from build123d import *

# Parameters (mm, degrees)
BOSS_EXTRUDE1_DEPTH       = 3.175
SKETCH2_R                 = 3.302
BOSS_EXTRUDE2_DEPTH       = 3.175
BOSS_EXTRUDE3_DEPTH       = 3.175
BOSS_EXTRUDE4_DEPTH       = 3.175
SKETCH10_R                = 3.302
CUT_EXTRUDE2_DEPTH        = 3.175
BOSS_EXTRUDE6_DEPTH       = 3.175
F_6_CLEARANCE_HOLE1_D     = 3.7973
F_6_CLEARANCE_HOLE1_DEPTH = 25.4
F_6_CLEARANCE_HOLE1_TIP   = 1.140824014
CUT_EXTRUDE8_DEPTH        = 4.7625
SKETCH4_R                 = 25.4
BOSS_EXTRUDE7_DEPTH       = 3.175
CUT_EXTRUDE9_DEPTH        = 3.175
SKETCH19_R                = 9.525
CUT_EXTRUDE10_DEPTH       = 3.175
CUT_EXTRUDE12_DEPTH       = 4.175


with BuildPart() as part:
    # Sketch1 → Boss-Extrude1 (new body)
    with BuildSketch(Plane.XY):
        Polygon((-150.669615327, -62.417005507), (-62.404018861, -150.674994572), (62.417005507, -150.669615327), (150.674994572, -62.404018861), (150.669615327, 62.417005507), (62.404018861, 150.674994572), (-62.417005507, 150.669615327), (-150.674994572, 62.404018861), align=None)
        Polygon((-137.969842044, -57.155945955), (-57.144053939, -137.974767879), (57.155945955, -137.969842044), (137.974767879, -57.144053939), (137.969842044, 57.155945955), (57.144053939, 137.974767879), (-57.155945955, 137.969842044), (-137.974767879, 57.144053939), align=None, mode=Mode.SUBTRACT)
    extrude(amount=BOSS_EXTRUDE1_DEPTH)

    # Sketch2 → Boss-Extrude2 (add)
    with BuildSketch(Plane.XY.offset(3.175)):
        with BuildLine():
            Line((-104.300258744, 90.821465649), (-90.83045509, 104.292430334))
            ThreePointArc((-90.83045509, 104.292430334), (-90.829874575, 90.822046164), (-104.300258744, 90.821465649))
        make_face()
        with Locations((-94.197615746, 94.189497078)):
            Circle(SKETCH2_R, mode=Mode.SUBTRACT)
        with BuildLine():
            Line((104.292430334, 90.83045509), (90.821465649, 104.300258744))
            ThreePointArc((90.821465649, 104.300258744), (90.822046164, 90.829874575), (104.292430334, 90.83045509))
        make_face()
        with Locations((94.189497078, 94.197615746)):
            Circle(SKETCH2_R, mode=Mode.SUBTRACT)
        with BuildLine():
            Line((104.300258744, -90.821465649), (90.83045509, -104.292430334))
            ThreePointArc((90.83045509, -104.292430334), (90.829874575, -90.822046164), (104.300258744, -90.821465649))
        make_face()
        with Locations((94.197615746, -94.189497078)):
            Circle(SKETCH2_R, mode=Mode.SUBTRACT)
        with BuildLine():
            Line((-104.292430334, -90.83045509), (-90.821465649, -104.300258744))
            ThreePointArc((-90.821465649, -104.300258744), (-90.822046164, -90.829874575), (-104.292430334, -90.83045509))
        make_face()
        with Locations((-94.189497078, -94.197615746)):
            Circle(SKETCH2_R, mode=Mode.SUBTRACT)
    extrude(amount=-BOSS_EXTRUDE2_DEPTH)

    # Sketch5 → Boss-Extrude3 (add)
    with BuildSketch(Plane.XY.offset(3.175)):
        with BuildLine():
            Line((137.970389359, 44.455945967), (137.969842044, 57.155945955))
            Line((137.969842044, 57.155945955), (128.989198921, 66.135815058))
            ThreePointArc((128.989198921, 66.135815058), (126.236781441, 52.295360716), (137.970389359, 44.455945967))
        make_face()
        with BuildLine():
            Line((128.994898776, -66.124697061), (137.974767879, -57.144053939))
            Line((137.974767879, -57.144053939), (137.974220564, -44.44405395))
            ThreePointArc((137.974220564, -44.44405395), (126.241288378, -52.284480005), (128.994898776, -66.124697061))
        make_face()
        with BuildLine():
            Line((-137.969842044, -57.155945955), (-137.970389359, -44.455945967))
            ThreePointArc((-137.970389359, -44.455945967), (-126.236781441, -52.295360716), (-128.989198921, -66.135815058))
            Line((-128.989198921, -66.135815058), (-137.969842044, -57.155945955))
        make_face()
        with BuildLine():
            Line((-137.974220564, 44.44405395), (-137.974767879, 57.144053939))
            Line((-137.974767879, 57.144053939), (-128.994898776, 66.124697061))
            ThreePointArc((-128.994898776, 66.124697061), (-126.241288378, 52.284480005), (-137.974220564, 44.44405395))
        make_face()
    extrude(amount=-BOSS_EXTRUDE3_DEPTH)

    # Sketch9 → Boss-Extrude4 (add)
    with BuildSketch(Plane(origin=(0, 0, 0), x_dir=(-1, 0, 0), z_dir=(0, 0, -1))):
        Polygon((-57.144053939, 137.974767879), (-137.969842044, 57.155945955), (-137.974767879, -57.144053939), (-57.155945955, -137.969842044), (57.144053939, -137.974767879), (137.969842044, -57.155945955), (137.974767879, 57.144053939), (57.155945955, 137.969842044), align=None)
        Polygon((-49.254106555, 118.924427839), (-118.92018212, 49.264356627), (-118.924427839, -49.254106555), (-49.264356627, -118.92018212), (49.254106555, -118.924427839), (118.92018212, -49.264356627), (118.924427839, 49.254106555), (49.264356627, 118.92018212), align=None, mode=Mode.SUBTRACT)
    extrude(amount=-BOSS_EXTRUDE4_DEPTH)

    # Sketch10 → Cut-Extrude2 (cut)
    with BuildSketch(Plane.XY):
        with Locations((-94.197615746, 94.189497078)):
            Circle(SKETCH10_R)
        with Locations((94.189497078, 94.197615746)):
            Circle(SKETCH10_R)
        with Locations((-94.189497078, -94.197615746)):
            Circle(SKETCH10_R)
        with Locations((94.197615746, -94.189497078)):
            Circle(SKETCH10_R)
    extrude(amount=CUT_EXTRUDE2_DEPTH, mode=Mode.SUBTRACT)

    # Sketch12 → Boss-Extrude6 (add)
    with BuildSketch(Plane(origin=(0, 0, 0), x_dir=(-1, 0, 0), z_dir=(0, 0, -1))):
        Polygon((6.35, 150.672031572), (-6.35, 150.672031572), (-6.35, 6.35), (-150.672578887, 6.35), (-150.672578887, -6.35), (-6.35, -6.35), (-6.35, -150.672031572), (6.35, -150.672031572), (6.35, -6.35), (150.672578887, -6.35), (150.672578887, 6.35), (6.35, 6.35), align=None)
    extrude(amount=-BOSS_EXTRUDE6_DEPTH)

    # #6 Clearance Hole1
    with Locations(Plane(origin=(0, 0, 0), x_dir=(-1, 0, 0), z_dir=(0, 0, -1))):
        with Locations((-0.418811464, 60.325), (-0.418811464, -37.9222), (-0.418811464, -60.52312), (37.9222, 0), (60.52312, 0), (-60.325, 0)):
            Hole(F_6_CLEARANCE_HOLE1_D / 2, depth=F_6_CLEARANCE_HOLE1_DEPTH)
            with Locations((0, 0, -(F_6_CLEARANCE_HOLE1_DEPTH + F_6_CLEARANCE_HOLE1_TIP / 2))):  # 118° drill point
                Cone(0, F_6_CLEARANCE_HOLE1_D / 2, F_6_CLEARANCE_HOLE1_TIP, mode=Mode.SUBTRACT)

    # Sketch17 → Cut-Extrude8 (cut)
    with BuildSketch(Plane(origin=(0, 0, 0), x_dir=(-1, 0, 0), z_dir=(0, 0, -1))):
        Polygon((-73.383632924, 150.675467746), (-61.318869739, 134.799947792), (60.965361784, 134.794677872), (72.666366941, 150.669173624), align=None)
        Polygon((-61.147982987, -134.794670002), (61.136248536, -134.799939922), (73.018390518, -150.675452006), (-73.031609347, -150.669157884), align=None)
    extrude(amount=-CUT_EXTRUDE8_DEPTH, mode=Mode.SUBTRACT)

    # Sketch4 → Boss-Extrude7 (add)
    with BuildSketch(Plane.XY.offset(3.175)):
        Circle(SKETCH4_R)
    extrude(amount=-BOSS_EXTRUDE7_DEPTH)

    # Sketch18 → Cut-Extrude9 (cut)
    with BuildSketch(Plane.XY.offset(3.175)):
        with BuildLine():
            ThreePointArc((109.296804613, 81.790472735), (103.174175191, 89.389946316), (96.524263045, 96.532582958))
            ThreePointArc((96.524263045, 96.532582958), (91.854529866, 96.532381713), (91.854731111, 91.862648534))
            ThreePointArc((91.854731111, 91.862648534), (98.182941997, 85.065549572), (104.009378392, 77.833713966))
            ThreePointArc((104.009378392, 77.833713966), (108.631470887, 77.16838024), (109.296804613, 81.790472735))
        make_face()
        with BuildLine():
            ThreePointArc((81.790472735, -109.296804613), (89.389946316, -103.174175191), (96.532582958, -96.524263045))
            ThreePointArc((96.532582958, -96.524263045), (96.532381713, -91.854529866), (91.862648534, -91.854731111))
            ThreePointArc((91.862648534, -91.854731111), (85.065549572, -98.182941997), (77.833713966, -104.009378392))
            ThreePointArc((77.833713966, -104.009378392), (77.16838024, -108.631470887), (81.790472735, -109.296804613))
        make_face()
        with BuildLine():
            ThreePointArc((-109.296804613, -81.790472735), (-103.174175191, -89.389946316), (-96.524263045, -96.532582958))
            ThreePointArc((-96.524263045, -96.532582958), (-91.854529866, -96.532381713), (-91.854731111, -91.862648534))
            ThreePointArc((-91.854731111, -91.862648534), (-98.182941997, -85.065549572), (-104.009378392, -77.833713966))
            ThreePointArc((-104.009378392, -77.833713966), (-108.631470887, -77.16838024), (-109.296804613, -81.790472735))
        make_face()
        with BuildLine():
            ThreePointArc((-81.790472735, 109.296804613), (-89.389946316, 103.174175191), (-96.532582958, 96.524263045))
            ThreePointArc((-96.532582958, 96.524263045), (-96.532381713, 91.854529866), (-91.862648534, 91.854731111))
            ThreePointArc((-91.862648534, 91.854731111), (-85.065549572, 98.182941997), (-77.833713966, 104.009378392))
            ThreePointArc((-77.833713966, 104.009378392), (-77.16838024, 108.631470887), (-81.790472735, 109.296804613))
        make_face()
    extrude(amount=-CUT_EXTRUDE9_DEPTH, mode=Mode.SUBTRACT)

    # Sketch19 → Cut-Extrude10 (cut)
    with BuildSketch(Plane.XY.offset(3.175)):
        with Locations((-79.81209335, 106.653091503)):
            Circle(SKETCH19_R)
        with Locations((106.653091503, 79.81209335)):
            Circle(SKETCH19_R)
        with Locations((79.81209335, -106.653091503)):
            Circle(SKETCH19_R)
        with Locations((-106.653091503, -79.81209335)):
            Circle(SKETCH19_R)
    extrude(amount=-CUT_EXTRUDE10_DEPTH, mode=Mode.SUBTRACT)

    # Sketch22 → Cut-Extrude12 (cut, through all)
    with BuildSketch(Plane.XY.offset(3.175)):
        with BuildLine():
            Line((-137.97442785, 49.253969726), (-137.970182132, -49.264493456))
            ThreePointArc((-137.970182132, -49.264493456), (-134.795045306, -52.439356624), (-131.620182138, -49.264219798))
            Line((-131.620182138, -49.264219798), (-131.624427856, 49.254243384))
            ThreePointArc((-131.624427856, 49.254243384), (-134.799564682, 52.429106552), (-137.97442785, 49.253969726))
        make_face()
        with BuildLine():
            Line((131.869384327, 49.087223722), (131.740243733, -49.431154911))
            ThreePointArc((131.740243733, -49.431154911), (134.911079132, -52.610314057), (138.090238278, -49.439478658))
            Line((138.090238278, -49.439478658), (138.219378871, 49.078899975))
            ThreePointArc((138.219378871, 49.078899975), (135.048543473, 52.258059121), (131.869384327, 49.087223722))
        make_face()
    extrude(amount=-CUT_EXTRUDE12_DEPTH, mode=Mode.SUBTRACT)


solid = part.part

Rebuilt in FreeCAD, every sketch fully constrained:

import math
import FreeCAD as App
import Part
import Sketcher
from FreeCAD import Vector
Q = App.Units.Quantity

doc = App.newDocument("Part")
params = doc.addObject("Spreadsheet::Sheet", "Params")
for row, (alias, value) in enumerate([
    ("sketch1_length", "4.5 in"),
    ("pad1_length", "0.125 in"),
    ("sketch2_diameter", "0.26 in"),
    ("sketch2_radius", "0.375 in"),
    ("pad2_length", "0.125 in"),
    ("sketch3_radius", "0.5 in"),
    ("pad3_length", "0.125 in"),
    ("sketch4_length", "4.5 in"),
    ("pad4_length", "0.125 in"),
    ("sketch5_diameter", "0.26 in"),
    ("pocket1_length", "0.125 in"),
    ("sketch6_width", "0.5 in"),
    ("pad5_length", "0.125 in"),
    ("hole_diameter", "0.1495 in"),
    ("hole_depth", "1 in"),
    ("sketch8_length", "5.75 in"),
    ("pocket2_length", "0.1875 in"),
    ("sketch9_diameter", "2 in"),
    ("pad6_length", "0.125 in"),
    ("sketch10_radius", "0.13 in"),
    ("pocket3_length", "0.125 in"),
    ("sketch11_diameter", "0.75 in"),
    ("pocket4_length", "0.125 in"),
    ("sketch12_radius", "0.125 in"),
    ("sketch12_radius2", "0.125 in"),
    ("sketch12_radius3", "0.125 in"),
    ("sketch12_radius4", "0.125 in"),
], start=1):
    params.set(f"A{row}", alias)
    params.set(f"B{row}", "=" + value)
    params.setAlias(f"B{row}", alias)

body = doc.addObject("PartDesign::Body", "Body")

sketch1 = body.newObject("Sketcher::SketchObject", "Sketch")
sketch1.AttachmentSupport = (doc.getObject("XY_Plane"), [""])
sketch1.MapMode = "FlatFace"
sketch1.addGeometry([
    Part.LineSegment(Vector(-151, -62, 0), Vector(-62, -151, 0)),
    Part.LineSegment(Vector(-62, -151, 0), Vector(62, -151, 0)),
    Part.LineSegment(Vector(62, -151, 0), Vector(151, -62, 0)),
    Part.LineSegment(Vector(151, -62, 0), Vector(151, 62, 0)),
    Part.LineSegment(Vector(151, 62, 0), Vector(62, 151, 0)),
    Part.LineSegment(Vector(62, 151, 0), Vector(-62, 151, 0)),
    Part.LineSegment(Vector(-62, 151, 0), Vector(-151, 62, 0)),
    Part.LineSegment(Vector(-151, 62, 0), Vector(-151, -62, 0)),
    Part.LineSegment(Vector(-57, -138, 0), Vector(-138, -57, 0)),
    Part.LineSegment(Vector(-138, -57, 0), Vector(-138, 57, 0)),
    Part.LineSegment(Vector(-138, 57, 0), Vector(-57, 138, 0)),
    Part.LineSegment(Vector(-57, 138, 0), Vector(57, 138, 0)),
    Part.LineSegment(Vector(57, 138, 0), Vector(138, 57, 0)),
    Part.LineSegment(Vector(138, 57, 0), Vector(138, -57, 0)),
    Part.LineSegment(Vector(138, -57, 0), Vector(57, -138, 0)),
    Part.LineSegment(Vector(57, -138, 0), Vector(-57, -138, 0)),
], False)
sketch1.addConstraint([
    Sketcher.Constraint("Coincident", 0, 2, 1, 1),
    Sketcher.Constraint("Coincident", 1, 2, 2, 1),
    Sketcher.Constraint("Coincident", 2, 2, 3, 1),
    Sketcher.Constraint("Coincident", 3, 2, 4, 1),
    Sketcher.Constraint("Coincident", 4, 2, 5, 1),
    Sketcher.Constraint("Coincident", 5, 2, 6, 1),
    Sketcher.Constraint("Coincident", 6, 2, 7, 1),
    Sketcher.Constraint("Coincident", 7, 2, 0, 1),
    Sketcher.Constraint("Coincident", 8, 2, 9, 1),
    Sketcher.Constraint("Coincident", 9, 2, 10, 1),
    Sketcher.Constraint("Coincident", 10, 2, 11, 1),
    Sketcher.Constraint("Coincident", 11, 2, 12, 1),
    Sketcher.Constraint("Coincident", 12, 2, 13, 1),
    Sketcher.Constraint("Coincident", 13, 2, 14, 1),
    Sketcher.Constraint("Coincident", 14, 2, 15, 1),
    Sketcher.Constraint("Coincident", 15, 2, 8, 1),
    Sketcher.Constraint("Symmetric", 0, 2, 4, 2, -1, 1),
    Sketcher.Constraint("Symmetric", 1, 2, 5, 2, -1, 1),
    Sketcher.Constraint("Symmetric", 2, 2, 6, 2, -1, 1),
    Sketcher.Constraint("Symmetric", 3, 2, 7, 2, -1, 1),
    Sketcher.Constraint("Symmetric", 8, 2, 12, 2, -1, 1),
    Sketcher.Constraint("Symmetric", 9, 2, 13, 2, -1, 1),
    Sketcher.Constraint("Symmetric", 10, 2, 14, 2, -1, 1),
    Sketcher.Constraint("Symmetric", 11, 2, 15, 2, -1, 1),
    Sketcher.Constraint("Perpendicular", 0, 2),
    Sketcher.Constraint("Perpendicular", 1, 3),
    Sketcher.Constraint("Perpendicular", 6, 8),
    Sketcher.Constraint("Parallel", 7, 9),
    Sketcher.Constraint("Perpendicular", 8, 10),
    Sketcher.Constraint("Perpendicular", 9, 11),
    Sketcher.Constraint("Equal", 0, 1),
    Sketcher.Constraint("Equal", 1, 2),
    Sketcher.Constraint("Equal", 2, 3),
    Sketcher.Constraint("Equal", 8, 9),
    Sketcher.Constraint("Equal", 9, 10),
    Sketcher.Constraint("Equal", 10, 11),
    Sketcher.Constraint("Distance", 8, Q("4.5 in")),
    Sketcher.Constraint("DistanceY", 0, 2, 3, 2, Q("213.092 mm")),
    Sketcher.Constraint("DistanceX", 0, 2, -1, 1, Q("62.404019 mm")),
    Sketcher.Constraint("DistanceY", 0, 2, 1, 2, Q("0.005379 mm")),
])
sketch1.setExpression("Constraints[36]", "Params.sketch1_length")
pad1 = body.newObject("PartDesign::Pad", "Pad")
pad1.Profile = sketch1
pad1.setExpression("Length", "Params.pad1_length")

sketch2 = body.newObject("Sketcher::SketchObject", "Sketch001")
sketch2.AttachmentSupport = (doc.getObject("XY_Plane"), [""])
sketch2.MapMode = "FlatFace"
sketch2.AttachmentOffset = App.Placement(Vector(0, 0, 0.125 * 25.4), App.Rotation())
sketch2.addGeometry([
    Part.LineSegment(Vector(-90.8, 104.3, 0), Vector(-104.3, 90.8, 0)),
    Part.ArcOfCircle(Part.Circle(Vector(-97.6, 97.6, 0), Vector(0, 0, 1), 9.5), math.radians(-135), math.radians(45)),
    Part.Circle(Vector(-94.2, 94.2, 0), Vector(0, 0, 1), 3.3),
    Part.LineSegment(Vector(104.3, 90.8, 0), Vector(90.8, 104.3, 0)),
    Part.ArcOfCircle(Part.Circle(Vector(97.6, 97.6, 0), Vector(0, 0, 1), 9.5), math.radians(135), math.radians(315)),
    Part.Circle(Vector(94.2, 94.2, 0), Vector(0, 0, 1), 3.3),
    Part.LineSegment(Vector(90.8, -104.3, 0), Vector(104.3, -90.8, 0)),
    Part.ArcOfCircle(Part.Circle(Vector(97.6, -97.6, 0), Vector(0, 0, 1), 9.5), math.radians(45), math.radians(225)),
    Part.Circle(Vector(94.2, -94.2, 0), Vector(0, 0, 1), 3.3),
    Part.LineSegment(Vector(-104.3, -90.8, 0), Vector(-90.8, -104.3, 0)),
    Part.ArcOfCircle(Part.Circle(Vector(-97.6, -97.6, 0), Vector(0, 0, 1), 9.5), math.radians(-45), math.radians(135)),
    Part.Circle(Vector(-94.2, -94.2, 0), Vector(0, 0, 1), 3.3),
], False)
sketch2.addConstraint([
    Sketcher.Constraint("Coincident", 0, 1, 1, 2),
    Sketcher.Constraint("Coincident", 1, 1, 0, 2),
    Sketcher.Constraint("Coincident", 3, 1, 4, 2),
    Sketcher.Constraint("Coincident", 4, 1, 3, 2),
    Sketcher.Constraint("Coincident", 6, 1, 7, 2),
    Sketcher.Constraint("Coincident", 7, 1, 6, 2),
    Sketcher.Constraint("Coincident", 9, 1, 10, 2),
    Sketcher.Constraint("Coincident", 10, 1, 9, 2),
    Sketcher.Constraint("Equal", 1, 4),
    Sketcher.Constraint("Equal", 2, 5),
    Sketcher.Constraint("Equal", 4, 7),
    Sketcher.Constraint("Equal", 5, 8),
    Sketcher.Constraint("Equal", 7, 10),
    Sketcher.Constraint("Equal", 8, 11),
    Sketcher.Constraint("Symmetric", 1, 3, 7, 3, -1, 1),
    Sketcher.Constraint("Symmetric", 2, 3, 8, 3, -1, 1),
    Sketcher.Constraint("Symmetric", 4, 3, 10, 3, -1, 1),
    Sketcher.Constraint("Symmetric", 5, 3, 11, 3, -1, 1),
    Sketcher.Constraint("Perpendicular", 0, 3),
    Sketcher.Constraint("Perpendicular", 3, 6),
    Sketcher.Constraint("Perpendicular", 6, 9),
    Sketcher.Constraint("Diameter", 2, Q("0.26 in")),
    Sketcher.Constraint("Radius", 1, Q("0.375 in")),
    Sketcher.Constraint("DistanceX", 1, 3, 0, 1, Q("6.734902 mm")),
    Sketcher.Constraint("DistanceX", 1, 1, 1, 3, Q("6.734902 mm")),
    Sketcher.Constraint("DistanceY", 3, 1, 4, 3, Q("6.734902 mm")),
    Sketcher.Constraint("DistanceX", 6, 1, 7, 3, Q("6.734902 mm")),
    Sketcher.Constraint("DistanceY", 10, 3, 9, 1, Q("6.734902 mm")),
    Sketcher.Constraint("DistanceY", -1, 1, 0, 1, Q("104.29243 mm")),
    Sketcher.Constraint("DistanceX", 1, 1, -1, 1, Q("104.300259 mm")),
    Sketcher.Constraint("DistanceX", -1, 1, 3, 1, Q("104.29243 mm")),
    Sketcher.Constraint("DistanceY", -1, 1, 4, 1, Q("104.300259 mm")),
    Sketcher.Constraint("DistanceX", 1, 3, 2, 3, Q("3.367741 mm")),
    Sketcher.Constraint("DistanceY", 2, 3, 1, 3, Q("3.367451 mm")),
    Sketcher.Constraint("DistanceX", 5, 3, 4, 3, Q("3.367451 mm")),
    Sketcher.Constraint("DistanceY", 5, 3, 4, 3, Q("3.367741 mm")),
])
sketch2.setExpression("Constraints[21]", "Params.sketch2_diameter")
sketch2.setExpression("Constraints[22]", "Params.sketch2_radius")
pad2 = body.newObject("PartDesign::Pad", "Pad001")
pad2.Profile = sketch2
pad2.setExpression("Length", "Params.pad2_length")
pad2.Reversed = True

sketch3 = body.newObject("Sketcher::SketchObject", "Sketch002")
sketch3.AttachmentSupport = (doc.getObject("XY_Plane"), [""])
sketch3.MapMode = "FlatFace"
sketch3.AttachmentOffset = App.Placement(Vector(0, 0, 0.125 * 25.4), App.Rotation())
sketch3.addGeometry([
    Part.LineSegment(Vector(138, 44, 0), Vector(138, 57, 0)),
    Part.LineSegment(Vector(138, 57, 0), Vector(129, 66, 0)),
    Part.ArcOfCircle(Part.Circle(Vector(138, 57, 0), Vector(0, 0, 1), 13), math.radians(135), math.radians(270)),
    Part.LineSegment(Vector(129, -66, 0), Vector(138, -57, 0)),
    Part.LineSegment(Vector(138, -57, 0), Vector(138, -44, 0)),
    Part.ArcOfCircle(Part.Circle(Vector(138, -57, 0), Vector(0, 0, 1), 13), math.radians(90), math.radians(225)),
    Part.LineSegment(Vector(-138, -44, 0), Vector(-138, -57, 0)),
    Part.LineSegment(Vector(-138, -57, 0), Vector(-129, -66, 0)),
    Part.ArcOfCircle(Part.Circle(Vector(-138, -57, 0), Vector(0, 0, 1), 13), math.radians(-45), math.radians(90)),
    Part.LineSegment(Vector(-138, 57, 0), Vector(-138, 44, 0)),
    Part.ArcOfCircle(Part.Circle(Vector(-138, 57, 0), Vector(0, 0, 1), 13), math.radians(-90), math.radians(45)),
    Part.LineSegment(Vector(-129, 66, 0), Vector(-138, 57, 0)),
], False)
sketch3.addConstraint([
    Sketcher.Constraint("Coincident", 0, 2, 1, 1),
    Sketcher.Constraint("Coincident", 1, 2, 2, 1),
    Sketcher.Constraint("Coincident", 2, 2, 0, 1),
    Sketcher.Constraint("Coincident", 3, 2, 4, 1),
    Sketcher.Constraint("Coincident", 4, 2, 5, 1),
    Sketcher.Constraint("Coincident", 5, 2, 3, 1),
    Sketcher.Constraint("Coincident", 6, 2, 7, 1),
    Sketcher.Constraint("Coincident", 7, 2, 8, 1),
    Sketcher.Constraint("Coincident", 8, 2, 6, 1),
    Sketcher.Constraint("Coincident", 9, 2, 10, 1),
    Sketcher.Constraint("Coincident", 10, 2, 11, 1),
    Sketcher.Constraint("Coincident", 11, 2, 9, 1),
    Sketcher.Constraint("Coincident", 0, 2, 2, 3),
    Sketcher.Constraint("Coincident", 3, 2, 5, 3),
    Sketcher.Constraint("Coincident", 6, 2, 8, 3),
    Sketcher.Constraint("Coincident", 11, 2, 10, 3),
    Sketcher.Constraint("Equal", 2, 5),
    Sketcher.Constraint("Equal", 5, 8),
    Sketcher.Constraint("Equal", 8, 10),
    Sketcher.Constraint("Symmetric", 2, 3, 8, 3, -1, 1),
    Sketcher.Constraint("Symmetric", 5, 3, 10, 3, -1, 1),
    Sketcher.Constraint("Perpendicular", 1, 3),
    Sketcher.Constraint("Parallel", 0, 4),
    Sketcher.Constraint("Parallel", 4, 6),
    Sketcher.Constraint("Perpendicular", 3, 7),
    Sketcher.Constraint("Parallel", 6, 9),
    Sketcher.Constraint("Perpendicular", 7, 11),
    Sketcher.Constraint("Radius", 2, Q("0.5 in")),
    Sketcher.Constraint("DistanceY", 5, 3, 2, 2, Q("4 in")),
    Sketcher.Constraint("DistanceX", -1, 1, 1, 2, Q("128.989199 mm")),
    Sketcher.Constraint("DistanceX", -1, 1, 5, 2, Q("128.994899 mm")),
    Sketcher.Constraint("DistanceX", -1, 1, 2, 2, Q("137.970389 mm")),
    Sketcher.Constraint("DistanceY", 8, 3, 2, 3, Q("114.311892 mm")),
    Sketcher.Constraint("DistanceY", 0, 2, 1, 2, Q("8.979869 mm")),
])
sketch3.setExpression("Constraints[27]", "Params.sketch3_radius")
pad3 = body.newObject("PartDesign::Pad", "Pad002")
pad3.Profile = sketch3
pad3.setExpression("Length", "Params.pad3_length")
pad3.Reversed = True

sketch4 = body.newObject("Sketcher::SketchObject", "Sketch003")
sketch4.AttachmentSupport = (doc.getObject("XY_Plane"), [""])
sketch4.MapMode = "FlatFace"
sketch4.addGeometry([
    Part.LineSegment(Vector(57, 138, 0), Vector(138, 57, 0)),
    Part.LineSegment(Vector(138, 57, 0), Vector(138, -57, 0)),
    Part.LineSegment(Vector(138, -57, 0), Vector(57, -138, 0)),
    Part.LineSegment(Vector(57, -138, 0), Vector(-57, -138, 0)),
    Part.LineSegment(Vector(-57, -138, 0), Vector(-138, -57, 0)),
    Part.LineSegment(Vector(-138, -57, 0), Vector(-138, 57, 0)),
    Part.LineSegment(Vector(-138, 57, 0), Vector(-57, 138, 0)),
    Part.LineSegment(Vector(-57, 138, 0), Vector(57, 138, 0)),
    Part.LineSegment(Vector(119, 49, 0), Vector(49, 119, 0)),
    Part.LineSegment(Vector(49, 119, 0), Vector(-49, 119, 0)),
    Part.LineSegment(Vector(-49, 119, 0), Vector(-119, 49, 0)),
    Part.LineSegment(Vector(-119, 49, 0), Vector(-119, -49, 0)),
    Part.LineSegment(Vector(-119, -49, 0), Vector(-49, -119, 0)),
    Part.LineSegment(Vector(-49, -119, 0), Vector(49, -119, 0)),
    Part.LineSegment(Vector(49, -119, 0), Vector(119, -49, 0)),
    Part.LineSegment(Vector(119, -49, 0), Vector(119, 49, 0)),
], False)
sketch4.addConstraint([
    Sketcher.Constraint("Coincident", 0, 2, 1, 1),
    Sketcher.Constraint("Coincident", 1, 2, 2, 1),
    Sketcher.Constraint("Coincident", 2, 2, 3, 1),
    Sketcher.Constraint("Coincident", 3, 2, 4, 1),
    Sketcher.Constraint("Coincident", 4, 2, 5, 1),
    Sketcher.Constraint("Coincident", 5, 2, 6, 1),
    Sketcher.Constraint("Coincident", 6, 2, 7, 1),
    Sketcher.Constraint("Coincident", 7, 2, 0, 1),
    Sketcher.Constraint("Coincident", 8, 2, 9, 1),
    Sketcher.Constraint("Coincident", 9, 2, 10, 1),
    Sketcher.Constraint("Coincident", 10, 2, 11, 1),
    Sketcher.Constraint("Coincident", 11, 2, 12, 1),
    Sketcher.Constraint("Coincident", 12, 2, 13, 1),
    Sketcher.Constraint("Coincident", 13, 2, 14, 1),
    Sketcher.Constraint("Coincident", 14, 2, 15, 1),
    Sketcher.Constraint("Coincident", 15, 2, 8, 1),
    Sketcher.Constraint("Symmetric", 0, 2, 4, 2, -1, 1),
    Sketcher.Constraint("Symmetric", 1, 2, 5, 2, -1, 1),
    Sketcher.Constraint("Symmetric", 2, 2, 6, 2, -1, 1),
    Sketcher.Constraint("Symmetric", 3, 2, 7, 2, -1, 1),
    Sketcher.Constraint("Symmetric", 8, 2, 12, 2, -1, 1),
    Sketcher.Constraint("Symmetric", 9, 2, 13, 2, -1, 1),
    Sketcher.Constraint("Symmetric", 10, 2, 14, 2, -1, 1),
    Sketcher.Constraint("Symmetric", 11, 2, 15, 2, -1, 1),
    Sketcher.Constraint("Perpendicular", 0, 2),
    Sketcher.Constraint("Perpendicular", 1, 3),
    Sketcher.Constraint("Perpendicular", 6, 8),
    Sketcher.Constraint("Parallel", 7, 9),
    Sketcher.Constraint("Perpendicular", 8, 10),
    Sketcher.Constraint("Perpendicular", 9, 11),
    Sketcher.Constraint("Equal", 0, 1),
    Sketcher.Constraint("Equal", 1, 2),
    Sketcher.Constraint("Equal", 2, 3),
    Sketcher.Constraint("Equal", 8, 9),
    Sketcher.Constraint("Equal", 9, 10),
    Sketcher.Constraint("Equal", 10, 11),
    Sketcher.Constraint("Distance", 0, Q("4.5 in")),
    Sketcher.Constraint("DistanceX", 2, 2, 1, 2, Q("80.818822 mm")),
    Sketcher.Constraint("DistanceY", 4, 2, 0, 2, Q("114.311892 mm")),
    Sketcher.Constraint("DistanceY", 8, 2, 7, 2, Q("19.05034 mm")),
])
sketch4.setExpression("Constraints[36]", "Params.sketch4_length")
pad4 = body.newObject("PartDesign::Pad", "Pad003")
pad4.Profile = sketch4
pad4.setExpression("Length", "Params.pad4_length")

sketch5 = body.newObject("Sketcher::SketchObject", "Sketch004")
sketch5.AttachmentSupport = (doc.getObject("XY_Plane"), [""])
sketch5.MapMode = "FlatFace"
sketch5.addGeometry([
    Part.Circle(Vector(-94.2, 94.2, 0), Vector(0, 0, 1), 3.3),
    Part.Circle(Vector(94.2, 94.2, 0), Vector(0, 0, 1), 3.3),
    Part.Circle(Vector(-94.2, -94.2, 0), Vector(0, 0, 1), 3.3),
    Part.Circle(Vector(94.2, -94.2, 0), Vector(0, 0, 1), 3.3),
], False)
sketch5.addConstraint([
    Sketcher.Constraint("Equal", 0, 1),
    Sketcher.Constraint("Equal", 1, 2),
    Sketcher.Constraint("Equal", 2, 3),
    Sketcher.Constraint("Symmetric", 1, 3, 2, 3, -1, 1),
    Sketcher.Constraint("Symmetric", 0, 3, 3, 3, -1, 1),
    Sketcher.Constraint("Diameter", 0, Q("0.26 in")),
    Sketcher.Constraint("DistanceY", 0, 3, 1, 3, Q("0.008119 mm")),
    Sketcher.Constraint("DistanceX", 0, 3, 2, 3, Q("0.008119 mm")),
    Sketcher.Constraint("DistanceY", 2, 3, 1, 3, Q("188.395231 mm")),
    Sketcher.Constraint("DistanceX", 0, 3, 3, 3, Q("188.395231 mm")),
])
sketch5.setExpression("Constraints[5]", "Params.sketch5_diameter")
pocket1 = body.newObject("PartDesign::Pocket", "Pocket")
pocket1.Profile = sketch5
pocket1.setExpression("Length", "Params.pocket1_length")
pocket1.Reversed = True

sketch6 = body.newObject("Sketcher::SketchObject", "Sketch005")
sketch6.AttachmentSupport = (doc.getObject("XY_Plane"), [""])
sketch6.MapMode = "FlatFace"
sketch6.addGeometry([
    Part.LineSegment(Vector(-6, 151, 0), Vector(6, 151, 0)),
    Part.LineSegment(Vector(6, 151, 0), Vector(6, 6, 0)),
    Part.LineSegment(Vector(6, 6, 0), Vector(151, 6, 0)),
    Part.LineSegment(Vector(151, 6, 0), Vector(151, -6, 0)),
    Part.LineSegment(Vector(151, -6, 0), Vector(6, -6, 0)),
    Part.LineSegment(Vector(6, -6, 0), Vector(6, -151, 0)),
    Part.LineSegment(Vector(6, -151, 0), Vector(-6, -151, 0)),
    Part.LineSegment(Vector(-6, -151, 0), Vector(-6, -6, 0)),
    Part.LineSegment(Vector(-6, -6, 0), Vector(-151, -6, 0)),
    Part.LineSegment(Vector(-151, -6, 0), Vector(-151, 6, 0)),
    Part.LineSegment(Vector(-151, 6, 0), Vector(-6, 6, 0)),
    Part.LineSegment(Vector(-6, 6, 0), Vector(-6, 151, 0)),
], False)
sketch6.addConstraint([
    Sketcher.Constraint("Coincident", 0, 2, 1, 1),
    Sketcher.Constraint("Coincident", 1, 2, 2, 1),
    Sketcher.Constraint("Coincident", 2, 2, 3, 1),
    Sketcher.Constraint("Coincident", 3, 2, 4, 1),
    Sketcher.Constraint("Coincident", 4, 2, 5, 1),
    Sketcher.Constraint("Coincident", 5, 2, 6, 1),
    Sketcher.Constraint("Coincident", 6, 2, 7, 1),
    Sketcher.Constraint("Coincident", 7, 2, 8, 1),
    Sketcher.Constraint("Coincident", 8, 2, 9, 1),
    Sketcher.Constraint("Coincident", 9, 2, 10, 1),
    Sketcher.Constraint("Coincident", 10, 2, 11, 1),
    Sketcher.Constraint("Coincident", 11, 2, 0, 1),
    Sketcher.Constraint("Horizontal", 0),
    Sketcher.Constraint("Vertical", 1),
    Sketcher.Constraint("Horizontal", 2),
    Sketcher.Constraint("Vertical", 3),
    Sketcher.Constraint("Horizontal", 4),
    Sketcher.Constraint("Vertical", 5),
    Sketcher.Constraint("Horizontal", 6),
    Sketcher.Constraint("Vertical", 7),
    Sketcher.Constraint("Horizontal", 8),
    Sketcher.Constraint("Vertical", 9),
    Sketcher.Constraint("Horizontal", 10),
    Sketcher.Constraint("Vertical", 11),
    Sketcher.Constraint("Symmetric", 0, 2, 6, 2, -1, 1),
    Sketcher.Constraint("Symmetric", 2, 2, 8, 2, -1, 1),
    Sketcher.Constraint("Symmetric", 4, 2, 10, 2, -1, 1),
    Sketcher.Constraint("Symmetric", 4, 2, 7, 2, -2),
    Sketcher.Constraint("Equal", 6, 3),
    Sketcher.Constraint("DistanceX", 0, 1, 0, 2, Q("0.5 in")),
    Sketcher.Constraint("DistanceX", 2, 1, 2, 2, Q("144.322579 mm")),
    Sketcher.Constraint("DistanceY", 1, 2, 1, 1, Q("144.322032 mm")),
])
sketch6.setExpression("Constraints[29]", "Params.sketch6_width")
pad5 = body.newObject("PartDesign::Pad", "Pad004")
pad5.Profile = sketch6
pad5.setExpression("Length", "Params.pad5_length")

sketch7 = body.newObject("Sketcher::SketchObject", "Sketch006")
sketch7.AttachmentSupport = (doc.getObject("XY_Plane"), [""])
sketch7.MapMode = "FlatFace"
sketch7.addGeometry([
    Part.Circle(Vector(0.4, 60.3, 0), Vector(0, 0, 1), 1.9),
    Part.Circle(Vector(0.4, -37.9, 0), Vector(0, 0, 1), 1.9),
    Part.Circle(Vector(0.4, -60.5, 0), Vector(0, 0, 1), 1.9),
    Part.Circle(Vector(-37.9, 0, 0), Vector(0, 0, 1), 1.9),
    Part.Circle(Vector(-60.5, 0, 0), Vector(0, 0, 1), 1.9),
    Part.Circle(Vector(60.3, 0, 0), Vector(0, 0, 1), 1.9),
], False)
sketch7.addConstraint([
    Sketcher.Constraint("Equal", 0, 1),
    Sketcher.Constraint("Equal", 1, 2),
    Sketcher.Constraint("Equal", 2, 3),
    Sketcher.Constraint("Equal", 3, 4),
    Sketcher.Constraint("Equal", 4, 5),
    Sketcher.Constraint("PointOnObject", 3, 3, -1),
    Sketcher.Constraint("PointOnObject", 4, 3, -1),
    Sketcher.Constraint("PointOnObject", 5, 3, -1),
    Sketcher.Constraint("Vertical", 0, 3, 1, 3),
    Sketcher.Constraint("Vertical", 1, 3, 2, 3),
    Sketcher.Constraint("Diameter", 0, Q("0.1495 in")),
    Sketcher.Constraint("DistanceY", -1, 1, 0, 3, Q("2.375 in")),
    Sketcher.Constraint("DistanceY", 1, 3, -1, 1, Q("1.493 in")),
    Sketcher.Constraint("DistanceX", 3, 3, -1, 1, Q("1.493 in")),
    Sketcher.Constraint("DistanceX", -1, 1, 5, 3, Q("2.375 in")),
    Sketcher.Constraint("DistanceY", 2, 3, -1, 1, Q("2.3828 in")),
    Sketcher.Constraint("DistanceX", 4, 3, -1, 1, Q("2.3828 in")),
    Sketcher.Constraint("DistanceX", -1, 1, 0, 3, Q("0.418811 mm")),
])
doc.recompute()
hole = body.newObject("PartDesign::Hole", "Hole")
hole.Profile = sketch7
hole.ThreadType = "None"
hole.setExpression("Diameter", "Params.hole_diameter")
hole.DepthType = "Dimension"
hole.setExpression("Depth", "Params.hole_depth")
hole.DrillPoint = "Angled"
hole.DrillPointAngle = 118
hole.Reversed = True

sketch8 = body.newObject("Sketcher::SketchObject", "Sketch007")
sketch8.AttachmentSupport = (doc.getObject("XY_Plane"), [""])
sketch8.MapMode = "FlatFace"
sketch8.addGeometry([
    Part.LineSegment(Vector(73, 151, 0), Vector(61, 135, 0)),
    Part.LineSegment(Vector(61, 135, 0), Vector(-61, 135, 0)),
    Part.LineSegment(Vector(-61, 135, 0), Vector(-73, 151, 0)),
    Part.LineSegment(Vector(-73, 151, 0), Vector(73, 151, 0)),
    Part.LineSegment(Vector(-61, -135, 0), Vector(61, -135, 0)),
    Part.LineSegment(Vector(61, -135, 0), Vector(73, -151, 0)),
    Part.LineSegment(Vector(73, -151, 0), Vector(-73, -151, 0)),
    Part.LineSegment(Vector(-73, -151, 0), Vector(-61, -135, 0)),
], False)
sketch8.addConstraint([
    Sketcher.Constraint("Coincident", 0, 2, 1, 1),
    Sketcher.Constraint("Coincident", 1, 2, 2, 1),
    Sketcher.Constraint("Coincident", 2, 2, 3, 1),
    Sketcher.Constraint("Coincident", 3, 2, 0, 1),
    Sketcher.Constraint("Coincident", 4, 2, 5, 1),
    Sketcher.Constraint("Coincident", 5, 2, 6, 1),
    Sketcher.Constraint("Coincident", 6, 2, 7, 1),
    Sketcher.Constraint("Coincident", 7, 2, 4, 1),
    Sketcher.Constraint("Parallel", 1, 3),
    Sketcher.Constraint("Parallel", 3, 4),
    Sketcher.Constraint("Parallel", 4, 6),
    Sketcher.Constraint("Equal", 1, 4),
    Sketcher.Constraint("Equal", 3, 6),
    Sketcher.Constraint("Distance", 3, Q("5.75 in")),
    Sketcher.Constraint("DistanceY", 6, 2, 0, 2, Q("285.4754 mm")),
    Sketcher.Constraint("Distance", 1, Q("122.284232 mm")),
    Sketcher.Constraint("Distance", 2, Q("19.720881 mm")),
    Sketcher.Constraint("DistanceX", -1, 1, 0, 2, Q("61.31887 mm")),
    Sketcher.Constraint("DistanceY", 4, 2, -1, 1, Q("134.79467 mm")),
    Sketcher.Constraint("DistanceX", -1, 1, 5, 2, Q("73.031609 mm")),
    Sketcher.Constraint("DistanceX", 7, 2, -1, 1, Q("61.136249 mm")),
    Sketcher.Constraint("DistanceY", 7, 2, -1, 1, Q("134.79994 mm")),
    Sketcher.Constraint("DistanceY", 0, 2, 3, 2, Q("15.87552 mm")),
    Sketcher.Constraint("Distance", 5, Q("19.829774 mm")),
])
sketch8.setExpression("Constraints[13]", "Params.sketch8_length")
pocket2 = body.newObject("PartDesign::Pocket", "Pocket001")
pocket2.Profile = sketch8
pocket2.setExpression("Length", "Params.pocket2_length")
pocket2.Reversed = True

sketch9 = body.newObject("Sketcher::SketchObject", "Sketch008")
sketch9.AttachmentSupport = (doc.getObject("XY_Plane"), [""])
sketch9.MapMode = "FlatFace"
sketch9.AttachmentOffset = App.Placement(Vector(0, 0, 0.125 * 25.4), App.Rotation())
sketch9.addGeometry(Part.Circle(Vector(0, 0, 0), Vector(0, 0, 1), 25), False)
sketch9.addConstraint([
    Sketcher.Constraint("Coincident", 0, 3, -1, 1),
    Sketcher.Constraint("Diameter", 0, Q("2 in")),
])
sketch9.setExpression("Constraints[1]", "Params.sketch9_diameter")
pad6 = body.newObject("PartDesign::Pad", "Pad005")
pad6.Profile = sketch9
pad6.setExpression("Length", "Params.pad6_length")
pad6.Reversed = True

sketch10 = body.newObject("Sketcher::SketchObject", "Sketch009")
sketch10.AttachmentSupport = (doc.getObject("XY_Plane"), [""])
sketch10.MapMode = "FlatFace"
sketch10.AttachmentOffset = App.Placement(Vector(0, 0, 0.125 * 25.4), App.Rotation())
sketch10.addGeometry([
    Part.ArcOfCircle(Part.Circle(Vector(0, 0, 0), Vector(0, 0, 1), 136.5), math.radians(36.81), math.radians(45)),
    Part.ArcOfCircle(Part.Circle(Vector(94.2, 94.2, 0), Vector(0, 0, 1), 3.3), math.radians(45), math.radians(225)),
    Part.ArcOfCircle(Part.Circle(Vector(0, 0, 0), Vector(0, 0, 1), 129.9), math.radians(36.81), math.radians(45)),
    Part.ArcOfCircle(Part.Circle(Vector(106.7, 79.8, 0), Vector(0, 0, 1), 3.3), math.radians(-143), math.radians(37)),
    Part.ArcOfCircle(Part.Circle(Vector(0, 0, 0), Vector(0, 0, 1), 136.5), math.radians(-53.19), math.radians(-45)),
    Part.ArcOfCircle(Part.Circle(Vector(94.2, -94.2, 0), Vector(0, 0, 1), 3.3), math.radians(-45), math.radians(135)),
    Part.ArcOfCircle(Part.Circle(Vector(0, 0, 0), Vector(0, 0, 1), 129.9), math.radians(-53.19), math.radians(-45)),
    Part.ArcOfCircle(Part.Circle(Vector(79.8, -106.7, 0), Vector(0, 0, 1), 3.3), math.radians(127), math.radians(307)),
    Part.ArcOfCircle(Part.Circle(Vector(0, 0, 0), Vector(0, 0, 1), 136.5), math.radians(-143.19), math.radians(-135)),
    Part.ArcOfCircle(Part.Circle(Vector(-94.2, -94.2, 0), Vector(0, 0, 1), 3.3), math.radians(-135), math.radians(45)),
    Part.ArcOfCircle(Part.Circle(Vector(0, 0, 0), Vector(0, 0, 1), 129.9), math.radians(-143.19), math.radians(-135)),
    Part.ArcOfCircle(Part.Circle(Vector(-106.7, -79.8, 0), Vector(0, 0, 1), 3.3), math.radians(37), math.radians(217)),
    Part.ArcOfCircle(Part.Circle(Vector(0, 0, 0), Vector(0, 0, 1), 136.5), math.radians(126.81), math.radians(135)),
    Part.ArcOfCircle(Part.Circle(Vector(-94.2, 94.2, 0), Vector(0, 0, 1), 3.3), math.radians(135), math.radians(315)),
    Part.ArcOfCircle(Part.Circle(Vector(0, 0, 0), Vector(0, 0, 1), 129.9), math.radians(126.81), math.radians(135)),
    Part.ArcOfCircle(Part.Circle(Vector(-79.8, 106.7, 0), Vector(0, 0, 1), 3.3), math.radians(-53), math.radians(127)),
], False)
sketch10.addConstraint([
    Sketcher.Constraint("Tangent", 0, 2, 1, 1),
    Sketcher.Constraint("Tangent", 1, 2, 2, 2),
    Sketcher.Constraint("Tangent", 2, 1, 3, 1),
    Sketcher.Constraint("Tangent", 3, 2, 0, 1),
    Sketcher.Constraint("Tangent", 4, 2, 5, 1),
    Sketcher.Constraint("Tangent", 5, 2, 6, 2),
    Sketcher.Constraint("Tangent", 6, 1, 7, 1),
    Sketcher.Constraint("Tangent", 7, 2, 4, 1),
    Sketcher.Constraint("Tangent", 8, 2, 9, 1),
    Sketcher.Constraint("Tangent", 9, 2, 10, 2),
    Sketcher.Constraint("Tangent", 10, 1, 11, 1),
    Sketcher.Constraint("Tangent", 11, 2, 8, 1),
    Sketcher.Constraint("Tangent", 12, 2, 13, 1),
    Sketcher.Constraint("Tangent", 13, 2, 14, 2),
    Sketcher.Constraint("Tangent", 14, 1, 15, 1),
    Sketcher.Constraint("Tangent", 15, 2, 12, 1),
    Sketcher.Constraint("Coincident", 0, 3, -1, 1),
    Sketcher.Constraint("Coincident", 2, 3, -1, 1),
    Sketcher.Constraint("Coincident", 4, 3, -1, 1),
    Sketcher.Constraint("Coincident", 6, 3, -1, 1),
    Sketcher.Constraint("Coincident", 8, 3, -1, 1),
    Sketcher.Constraint("Coincident", 10, 3, -1, 1),
    Sketcher.Constraint("Coincident", 12, 3, -1, 1),
    Sketcher.Constraint("Coincident", 14, 3, -1, 1),
    Sketcher.Constraint("Equal", 0, 4),
    Sketcher.Constraint("Equal", 3, 5),
    Sketcher.Constraint("Equal", 4, 8),
    Sketcher.Constraint("Equal", 7, 9),
    Sketcher.Constraint("Equal", 8, 12),
    Sketcher.Constraint("Equal", 11, 13),
    Sketcher.Constraint("Radius", 1, Q("0.13 in")),
    Sketcher.Constraint("Radius", 0, Q("136.511805 mm")),
    Sketcher.Constraint("DistanceY", 2, 1, 1, 3, Q("16.363902 mm")),
    Sketcher.Constraint("DistanceX", 6, 1, 5, 3, Q("16.363902 mm")),
    Sketcher.Constraint("DistanceY", 9, 3, 10, 1, Q("16.363902 mm")),
    Sketcher.Constraint("DistanceX", 13, 3, 14, 1, Q("16.363902 mm")),
    Sketcher.Constraint("DistanceX", -1, 1, 3, 3, Q("106.653092 mm")),
    Sketcher.Constraint("DistanceY", 7, 3, -1, 1, Q("106.653092 mm")),
    Sketcher.Constraint("DistanceX", 11, 3, -1, 1, Q("106.653092 mm")),
    Sketcher.Constraint("DistanceY", -1, 1, 15, 3, Q("106.653092 mm")),
])
sketch10.setExpression("Constraints[30]", "Params.sketch10_radius")
pocket3 = body.newObject("PartDesign::Pocket", "Pocket002")
pocket3.Profile = sketch10
pocket3.setExpression("Length", "Params.pocket3_length")

sketch11 = body.newObject("Sketcher::SketchObject", "Sketch010")
sketch11.AttachmentSupport = (doc.getObject("XY_Plane"), [""])
sketch11.MapMode = "FlatFace"
sketch11.AttachmentOffset = App.Placement(Vector(0, 0, 0.125 * 25.4), App.Rotation())
sketch11.addGeometry([
    Part.Circle(Vector(-80, 107, 0), Vector(0, 0, 1), 10),
    Part.Circle(Vector(107, 80, 0), Vector(0, 0, 1), 10),
    Part.Circle(Vector(80, -107, 0), Vector(0, 0, 1), 10),
    Part.Circle(Vector(-107, -80, 0), Vector(0, 0, 1), 10),
], False)
sketch11.addConstraint([
    Sketcher.Constraint("Equal", 0, 1),
    Sketcher.Constraint("Equal", 1, 2),
    Sketcher.Constraint("Equal", 2, 3),
    Sketcher.Constraint("Symmetric", 0, 3, 2, 3, -1, 1),
    Sketcher.Constraint("Symmetric", 1, 3, 3, 3, -1, 1),
    Sketcher.Constraint("Diameter", 0, Q("0.75 in")),
    Sketcher.Constraint("DistanceY", 1, 3, 0, 3, Q("26.840998 mm")),
    Sketcher.Constraint("DistanceX", 2, 3, 1, 3, Q("26.840998 mm")),
    Sketcher.Constraint("DistanceY", -1, 1, 0, 3, Q("106.653092 mm")),
    Sketcher.Constraint("DistanceX", -1, 1, 1, 3, Q("106.653092 mm")),
])
sketch11.setExpression("Constraints[5]", "Params.sketch11_diameter")
pocket4 = body.newObject("PartDesign::Pocket", "Pocket003")
pocket4.Profile = sketch11
pocket4.setExpression("Length", "Params.pocket4_length")

sketch12 = body.newObject("Sketcher::SketchObject", "Sketch011")
sketch12.AttachmentSupport = (doc.getObject("XY_Plane"), [""])
sketch12.MapMode = "FlatFace"
sketch12.AttachmentOffset = App.Placement(Vector(0, 0, 0.125 * 25.4), App.Rotation())
sketch12.addGeometry([
    Part.LineSegment(Vector(-137.974428, 49.25397, 0), Vector(-137.970182, -49.264493, 0)),
    Part.ArcOfCircle(Part.Circle(Vector(-134.795182, -49.264357, 0), Vector(0, 0, 1), 3.175), math.radians(-179.997531), math.radians(0.002469)),
    Part.LineSegment(Vector(-131.620182, -49.26422, 0), Vector(-131.624428, 49.254243, 0)),
    Part.ArcOfCircle(Part.Circle(Vector(-134.799428, 49.254107, 0), Vector(0, 0, 1), 3.175), math.radians(0.002469), math.radians(180.002469)),
    Part.LineSegment(Vector(131.869384, 49.087224, 0), Vector(131.740244, -49.431155, 0)),
    Part.ArcOfCircle(Part.Circle(Vector(134.915241, -49.435317, 0), Vector(0, 0, 1), 3.175), math.radians(179.924895), math.radians(359.924895)),
    Part.LineSegment(Vector(138.090238, -49.439479, 0), Vector(138.219379, 49.0789, 0)),
    Part.ArcOfCircle(Part.Circle(Vector(135.044382, 49.083062, 0), Vector(0, 0, 1), 3.175), math.radians(-0.075105), math.radians(179.924895)),
], False)
sketch12.addConstraint([
    Sketcher.Constraint("Coincident", 0, 2, 1, 1),
    Sketcher.Constraint("Coincident", 1, 2, 2, 1),
    Sketcher.Constraint("Coincident", 2, 2, 3, 1),
    Sketcher.Constraint("Coincident", 3, 2, 0, 1),
    Sketcher.Constraint("Coincident", 4, 2, 5, 1),
    Sketcher.Constraint("Coincident", 5, 2, 6, 1),
    Sketcher.Constraint("Coincident", 6, 2, 7, 1),
    Sketcher.Constraint("Coincident", 7, 2, 4, 1),
    Sketcher.Constraint("Radius", 1, Q("0.125 in")),
    Sketcher.Constraint("Radius", 3, Q("0.125 in")),
    Sketcher.Constraint("Radius", 5, Q("0.125 in")),
    Sketcher.Constraint("Radius", 7, Q("0.125 in")),
    Sketcher.Constraint("DistanceY", 5, 2, 1, 2, Q("0.0069 in")),
    Sketcher.Constraint("DistanceY", -1, 1, 6, 2, Q("49.0789 mm")),
    Sketcher.Constraint("DistanceY", 0, 2, 3, 3, Q("98.5186 mm")),
    Sketcher.Constraint("DistanceY", 1, 3, 2, 2, Q("98.5186 mm")),
    Sketcher.Constraint("DistanceY", 4, 2, 1, 3, Q("0.166798 mm")),
    Sketcher.Constraint("DistanceX", -1, 1, 5, 3, Q("134.915241 mm")),
    Sketcher.Constraint("DistanceX", -1, 1, 7, 3, Q("135.044382 mm")),
    Sketcher.Constraint("DistanceY", -1, 1, 7, 3, Q("49.083062 mm")),
    Sketcher.Constraint("DistanceY", 1, 2, -1, 1, Q("49.26422 mm")),
    Sketcher.Constraint("DistanceY", -1, 1, 3, 2, Q("49.25397 mm")),
    Sketcher.Constraint("DistanceY", 5, 3, 1, 3, Q("0.17096 mm")),
    Sketcher.Constraint("DistanceX", 3, 3, 5, 3, Q("269.714669 mm")),
    Sketcher.Constraint("DistanceY", 5, 3, 7, 3, Q("98.518379 mm")),
    Sketcher.Constraint("DistanceY", 4, 2, 0, 2, Q("0.166661 mm")),
    Sketcher.Constraint("DistanceX", 1, 2, 5, 2, Q("269.71042 mm")),
    Sketcher.Constraint("DistanceY", 7, 3, 7, 2, Q("0.004162 mm")),
])
sketch12.setExpression("Constraints[8]", "Params.sketch12_radius")
sketch12.setExpression("Constraints[9]", "Params.sketch12_radius2")
sketch12.setExpression("Constraints[10]", "Params.sketch12_radius3")
sketch12.setExpression("Constraints[11]", "Params.sketch12_radius4")
pocket5 = body.newObject("PartDesign::Pocket", "Pocket004")
pocket5.Profile = sketch12
pocket5.Type = "ThroughAll"

doc.recompute()
